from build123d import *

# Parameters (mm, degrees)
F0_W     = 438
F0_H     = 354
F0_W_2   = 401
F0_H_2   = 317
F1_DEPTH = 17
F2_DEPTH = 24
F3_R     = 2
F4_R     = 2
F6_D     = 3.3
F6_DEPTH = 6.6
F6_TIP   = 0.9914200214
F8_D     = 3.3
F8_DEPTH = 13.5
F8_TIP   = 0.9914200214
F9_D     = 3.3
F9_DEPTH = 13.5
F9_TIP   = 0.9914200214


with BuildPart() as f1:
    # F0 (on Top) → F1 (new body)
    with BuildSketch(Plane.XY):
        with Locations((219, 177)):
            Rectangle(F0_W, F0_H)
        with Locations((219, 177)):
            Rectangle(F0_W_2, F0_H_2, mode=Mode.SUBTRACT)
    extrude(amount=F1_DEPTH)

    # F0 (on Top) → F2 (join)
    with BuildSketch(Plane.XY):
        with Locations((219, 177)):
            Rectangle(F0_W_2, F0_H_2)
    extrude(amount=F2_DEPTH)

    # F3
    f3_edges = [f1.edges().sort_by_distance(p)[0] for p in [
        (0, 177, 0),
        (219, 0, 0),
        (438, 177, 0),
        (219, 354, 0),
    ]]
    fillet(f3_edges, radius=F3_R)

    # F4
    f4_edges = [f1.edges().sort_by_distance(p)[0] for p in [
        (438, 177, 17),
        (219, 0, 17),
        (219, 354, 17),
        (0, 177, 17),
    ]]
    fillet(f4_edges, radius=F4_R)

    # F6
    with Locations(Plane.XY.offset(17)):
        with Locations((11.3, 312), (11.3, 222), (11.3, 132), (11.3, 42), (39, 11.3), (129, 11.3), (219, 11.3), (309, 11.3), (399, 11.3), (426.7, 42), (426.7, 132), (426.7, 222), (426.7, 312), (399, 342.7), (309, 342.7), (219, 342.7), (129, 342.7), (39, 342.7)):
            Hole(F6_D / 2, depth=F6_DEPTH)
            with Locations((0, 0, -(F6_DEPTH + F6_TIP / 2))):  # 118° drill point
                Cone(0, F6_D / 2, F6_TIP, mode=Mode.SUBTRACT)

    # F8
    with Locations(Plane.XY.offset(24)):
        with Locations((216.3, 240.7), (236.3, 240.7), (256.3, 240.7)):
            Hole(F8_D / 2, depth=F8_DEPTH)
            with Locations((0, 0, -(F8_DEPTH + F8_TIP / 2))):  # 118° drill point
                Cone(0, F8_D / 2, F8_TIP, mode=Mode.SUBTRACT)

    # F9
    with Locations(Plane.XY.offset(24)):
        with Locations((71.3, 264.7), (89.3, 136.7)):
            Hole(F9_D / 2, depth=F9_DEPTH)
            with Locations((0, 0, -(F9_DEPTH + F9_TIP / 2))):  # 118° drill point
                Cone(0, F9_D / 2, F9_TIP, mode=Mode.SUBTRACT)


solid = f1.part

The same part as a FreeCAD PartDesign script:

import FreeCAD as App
import Part
import Sketcher


def edges_at(feature, points):
    """Names of the edges that pass closest to the given points."""
    edges = feature.Shape.Edges
    near = lambda p: min(range(len(edges)), key=lambda i: edges[i].distToShape(Part.Vertex(*p))[0])
    return sorted({f"Edge{near(p) + 1}" for p in points})

doc = App.newDocument("Part")
body = doc.addObject("PartDesign::Body", "Body")

# Sketch on XY plane
sketch1 = body.newObject("Sketcher::SketchObject", "Sketch")
sketch1.AttachmentSupport = (doc.getObject("XY_Plane"), [""])
sketch1.MapMode = "FlatFace"
sketch1.addGeometry([
    Part.LineSegment(App.Vector(0, 354, 0), App.Vector(0, 0, 0)),  # 0
    Part.LineSegment(App.Vector(0, 0, 0), App.Vector(438, 0, 0)),  # 1
    Part.LineSegment(App.Vector(438, 0, 0), App.Vector(438, 354, 0)),  # 2
    Part.LineSegment(App.Vector(438, 354, 0), App.Vector(0, 354, 0)),  # 3
    Part.LineSegment(App.Vector(420, 18, 0), App.Vector(18, 18, 0)),  # 4
    Part.LineSegment(App.Vector(18, 18, 0), App.Vector(18, 336, 0)),  # 5
    Part.LineSegment(App.Vector(18, 336, 0), App.Vector(420, 336, 0)),  # 6
    Part.LineSegment(App.Vector(420, 336, 0), App.Vector(420, 18, 0)),  # 7
], False)
sketch1.addConstraint([
    Sketcher.Constraint("Coincident", 0, 2, 1, 1),
    Sketcher.Constraint("Coincident", 1, 2, 2, 1),
    Sketcher.Constraint("Coincident", 2, 2, 3, 1),
    Sketcher.Constraint("Coincident", 3, 2, 0, 1),
    Sketcher.Constraint("Coincident", 4, 2, 5, 1),
    Sketcher.Constraint("Coincident", 5, 2, 6, 1),
    Sketcher.Constraint("Coincident", 6, 2, 7, 1),
    Sketcher.Constraint("Coincident", 7, 2, 4, 1),
    Sketcher.Constraint("Vertical", 0),
    Sketcher.Constraint("Horizontal", 1),
    Sketcher.Constraint("Vertical", 2),
    Sketcher.Constraint("Horizontal", 3),
    Sketcher.Constraint("Horizontal", 4),
    Sketcher.Constraint("Vertical", 5),
    Sketcher.Constraint("Horizontal", 6),
    Sketcher.Constraint("Vertical", 7),
    Sketcher.Constraint("Coincident", 0, 2, -1, 1),
    Sketcher.Constraint("DistanceX", 1, 1, 1, 2, 438.0),
    Sketcher.Constraint("DistanceX", 4, 2, 4, 1, 401.0),
    Sketcher.Constraint("DistanceY", 0, 2, 0, 1, 354.0),
    Sketcher.Constraint("DistanceY", 5, 1, 5, 2, 317.0),
    Sketcher.Constraint("DistanceX", -1, 1, 4, 2, 18.5),
    Sketcher.Constraint("DistanceY", -1, 1, 4, 2, 18.5),
])
pad1 = body.newObject("PartDesign::Pad", "Pad")
pad1.Profile = sketch1
pad1.Length = 17

# Sketch on XY plane
sketch2 = body.newObject("Sketcher::SketchObject", "Sketch001")
sketch2.AttachmentSupport = (doc.getObject("XY_Plane"), [""])
sketch2.MapMode = "FlatFace"
sketch2.addGeometry([
    Part.LineSegment(App.Vector(18, 336, 0), App.Vector(18, 18, 0)),
    Part.LineSegment(App.Vector(18, 18, 0), App.Vector(420, 18, 0)),
    Part.LineSegment(App.Vector(420, 18, 0), App.Vector(420, 336, 0)),
    Part.LineSegment(App.Vector(420, 336, 0), App.Vector(18, 336, 0)),
], False)
sketch2.addConstraint([
    Sketcher.Constraint("Coincident", 0, 2, 1, 1),
    Sketcher.Constraint("Coincident", 1, 2, 2, 1),
    Sketcher.Constraint("Coincident", 2, 2, 3, 1),
    Sketcher.Constraint("Coincident", 3, 2, 0, 1),
    Sketcher.Constraint("Vertical", 0),
    Sketcher.Constraint("Horizontal", 1),
    Sketcher.Constraint("Vertical", 2),
    Sketcher.Constraint("Horizontal", 3),
    Sketcher.Constraint("DistanceX", 1, 1, 1, 2, 401.0),
    Sketcher.Constraint("DistanceY", 0, 2, 0, 1, 317.0),
    Sketcher.Constraint("DistanceX", -1, 1, 0, 2, 18.5),
    Sketcher.Constraint("DistanceY", -1, 1, 0, 2, 18.5),
])
pad2 = body.newObject("PartDesign::Pad", "Pad001")
pad2.Profile = sketch2
pad2.Length = 24
doc.recompute()

fillet = body.newObject("PartDesign::Fillet", "Fillet")
fillet.Base = (pad2, edges_at(pad2, [
    (0, 177, 0),
    (219, 0, 0),
    (438, 177, 0),
    (219, 354, 0),
]))
fillet.Radius = 2
doc.recompute()

fillet2 = body.newObject("PartDesign::Fillet", "Fillet001")
fillet2.Base = (fillet, edges_at(fillet, [
    (438, 177, 17),
    (219, 0, 17),
    (219, 354, 17),
    (0, 177, 17),
]))
fillet2.Radius = 2

# Sketch on XY plane
sketch3 = body.newObject("Sketcher::SketchObject", "Sketch002")
sketch3.AttachmentSupport = (doc.getObject("XY_Plane"), [""])
sketch3.MapMode = "FlatFace"
sketch3.AttachmentOffset = App.Placement(App.Vector(0, 0, 17), App.Rotation())
sketch3.addGeometry([
    Part.Circle(App.Vector(11.3, 312, 0), App.Vector(0, 0, 1), 1.6),  # 0
    Part.Circle(App.Vector(11.3, 222, 0), App.Vector(0, 0, 1), 1.6),  # 1
    Part.Circle(App.Vector(11.3, 132, 0), App.Vector(0, 0, 1), 1.6),  # 2
    Part.Circle(App.Vector(11.3, 42, 0), App.Vector(0, 0, 1), 1.6),  # 3
    Part.Circle(App.Vector(39, 11.3, 0), App.Vector(0, 0, 1), 1.6),  # 4
    Part.Circle(App.Vector(129, 11.3, 0), App.Vector(0, 0, 1), 1.6),  # 5
    Part.Circle(App.Vector(219, 11.3, 0), App.Vector(0, 0, 1), 1.6),  # 6
    Part.Circle(App.Vector(309, 11.3, 0), App.Vector(0, 0, 1), 1.6),  # 7
    Part.Circle(App.Vector(399, 11.3, 0), App.Vector(0, 0, 1), 1.6),  # 8
    Part.Circle(App.Vector(426.7, 42, 0), App.Vector(0, 0, 1), 1.6),  # 9
    Part.Circle(App.Vector(426.7, 132, 0), App.Vector(0, 0, 1), 1.6),  # 10
    Part.Circle(App.Vector(426.7, 222, 0), App.Vector(0, 0, 1), 1.6),  # 11
    Part.Circle(App.Vector(426.7, 312, 0), App.Vector(0, 0, 1), 1.6),  # 12
    Part.Circle(App.Vector(399, 342.7, 0), App.Vector(0, 0, 1), 1.6),  # 13
    Part.Circle(App.Vector(309, 342.7, 0), App.Vector(0, 0, 1), 1.6),  # 14
    Part.Circle(App.Vector(219, 342.7, 0), App.Vector(0, 0, 1), 1.6),  # 15
    Part.Circle(App.Vector(129, 342.7, 0), App.Vector(0, 0, 1), 1.6),  # 16
    Part.Circle(App.Vector(39, 342.7, 0), App.Vector(0, 0, 1), 1.6),  # 17
], False)
sketch3.addConstraint([
    Sketcher.Constraint("Equal", 0, 1),
    Sketcher.Constraint("Equal", 1, 2),
    Sketcher.Constraint("Equal", 2, 3),
    Sketcher.Constraint("Equal", 3, 4),
    Sketcher.Constraint("Equal", 4, 5),
    Sketcher.Constraint("Equal", 5, 6),
    Sketcher.Constraint("Equal", 6, 7),
    Sketcher.Constraint("Equal", 7, 8),
    Sketcher.Constraint("Equal", 8, 9),
    Sketcher.Constraint("Equal", 9, 10),
    Sketcher.Constraint("Equal", 10, 11),
    Sketcher.Constraint("Equal", 11, 12),
    Sketcher.Constraint("Equal", 12, 13),
    Sketcher.Constraint("Equal", 13, 14),
    Sketcher.Constraint("Equal", 14, 15),
    Sketcher.Constraint("Equal", 15, 16),
    Sketcher.Constraint("Equal", 16, 17),
    Sketcher.Constraint("Horizontal", 4, 3, 5, 3),
    Sketcher.Constraint("Horizontal", 5, 3, 6, 3),
    Sketcher.Constraint("Horizontal", 6, 3, 7, 3),
    Sketcher.Constraint("Horizontal", 7, 3, 8, 3),
    Sketcher.Constraint("Horizontal", 3, 3, 9, 3),
    Sketcher.Constraint("Horizontal", 2, 3, 10, 3),
    Sketcher.Constraint("Horizontal", 1, 3, 11, 3),
    Sketcher.Constraint("Horizontal", 0, 3, 12, 3),
    Sketcher.Constraint("Horizontal", 13, 3, 14, 3),
    Sketcher.Constraint("Horizontal", 14, 3, 15, 3),
    Sketcher.Constraint("Horizontal", 15, 3, 16, 3),
    Sketcher.Constraint("Horizontal", 16, 3, 17, 3),
    Sketcher.Constraint("Vertical", 0, 3, 1, 3),
    Sketcher.Constraint("Vertical", 1, 3, 2, 3),
    Sketcher.Constraint("Vertical", 2, 3, 3, 3),
    Sketcher.Constraint("Vertical", 9, 3, 10, 3),
    Sketcher.Constraint("Vertical", 10, 3, 11, 3),
    Sketcher.Constraint("Vertical", 11, 3, 12, 3),
    Sketcher.Constraint("Vertical", 8, 3, 13, 3),
    Sketcher.Constraint("Vertical", 7, 3, 14, 3),
    Sketcher.Constraint("Vertical", 6, 3, 15, 3),
    Sketcher.Constraint("Vertical", 5, 3, 16, 3),
    Sketcher.Constraint("Vertical", 4, 3, 17, 3),
    Sketcher.Constraint("Diameter", 0, 3.3),
    Sketcher.Constraint("DistanceY", -1, 1, 0, 3, 312.0),
    Sketcher.Constraint("DistanceY", -1, 1, 1, 3, 222.0),
    Sketcher.Constraint("DistanceY", -1, 1, 2, 3, 132.0),
    Sketcher.Constraint("DistanceY", -1, 1, 3, 3, 42.0),
    Sketcher.Constraint("DistanceX", -1, 1, 4, 3, 39.0),
    Sketcher.Constraint("DistanceX", -1, 1, 5, 3, 129.0),
    Sketcher.Constraint("DistanceX", -1, 1, 6, 3, 219.0),
    Sketcher.Constraint("DistanceX", -1, 1, 7, 3, 309.0),
    Sketcher.Constraint("DistanceX", -1, 1, 8, 3, 399.0),
    Sketcher.Constraint("DistanceX", -1, 1, 0, 3, 11.3),
    Sketcher.Constraint("DistanceY", -1, 1, 4, 3, 11.3),
    Sketcher.Constraint("DistanceX", -1, 1, 9, 3, 426.7),
    Sketcher.Constraint("DistanceY", -1, 1, 13, 3, 342.7),
])
doc.recompute()
hole = body.newObject("PartDesign::Hole", "Hole")
hole.Profile = sketch3
hole.ThreadType = "None"
hole.Diameter = 3.3
hole.DepthType = "Dimension"
hole.Depth = 6.6
hole.DrillPoint = "Angled"
hole.DrillPointAngle = 118

# Sketch on XY plane
sketch4 = body.newObject("Sketcher::SketchObject", "Sketch003")
sketch4.AttachmentSupport = (doc.getObject("XY_Plane"), [""])
sketch4.MapMode = "FlatFace"
sketch4.AttachmentOffset = App.Placement(App.Vector(0, 0, 24), App.Rotation())
sketch4.addGeometry([
    Part.Circle(App.Vector(216.3, 240.7, 0), App.Vector(0, 0, 1), 1.6),
    Part.Circle(App.Vector(236.3, 240.7, 0), App.Vector(0, 0, 1), 1.6),
    Part.Circle(App.Vector(256.3, 240.7, 0), App.Vector(0, 0, 1), 1.6),
], False)
sketch4.addConstraint([
    Sketcher.Constraint("Equal", 0, 1),
    Sketcher.Constraint("Equal", 1, 2),
    Sketcher.Constraint("Horizontal", 0, 3, 1, 3),
    Sketcher.Constraint("Horizontal", 1, 3, 2, 3),
    Sketcher.Constraint("Diameter", 0, 3.3),
    Sketcher.Constraint("DistanceX", 0, 3, 1, 3, 20.0),
    Sketcher.Constraint("DistanceX", 1, 3, 2, 3, 20.0),
    Sketcher.Constraint("DistanceX", -1, 1, 0, 3, 216.3),
    Sketcher.Constraint("DistanceY", -1, 1, 0, 3, 240.7),
])
doc.recompute()
hole2 = body.newObject("PartDesign::Hole", "Hole001")
hole2.Profile = sketch4
hole2.ThreadType = "None"
hole2.Diameter = 3.3
hole2.DepthType = "Dimension"
hole2.Depth = 13.5
hole2.DrillPoint = "Angled"
hole2.DrillPointAngle = 118

# Sketch on XY plane
sketch5 = body.newObject("Sketcher::SketchObject", "Sketch004")
sketch5.AttachmentSupport = (doc.getObject("XY_Plane"), [""])
sketch5.MapMode = "FlatFace"
sketch5.AttachmentOffset = App.Placement(App.Vector(0, 0, 24), App.Rotation())
sketch5.addGeometry([
    Part.Circle(App.Vector(71.3, 264.7, 0), App.Vector(0, 0, 1), 1.6),
    Part.Circle(App.Vector(89.3, 136.7, 0), App.Vector(0, 0, 1), 1.6),
], False)
sketch5.addConstraint([
    Sketcher.Constraint("Equal", 0, 1),
    Sketcher.Constraint("Diameter", 0, 3.3),
    Sketcher.Constraint("DistanceX", 0, 3, 1, 3, 18.0),
    Sketcher.Constraint("DistanceY", 1, 3, 0, 3, 128.0),
    Sketcher.Constraint("DistanceX", -1, 1, 0, 3, 71.3),
    Sketcher.Constraint("DistanceY", -1, 1, 0, 3, 264.7),
])
doc.recompute()
hole3 = body.newObject("PartDesign::Hole", "Hole002")
hole3.Profile = sketch5
hole3.ThreadType = "None"
hole3.Diameter = 3.3
hole3.DepthType = "Dimension"
hole3.Depth = 13.5
hole3.DrillPoint = "Angled"
hole3.DrillPointAngle = 118

doc.recompute()
